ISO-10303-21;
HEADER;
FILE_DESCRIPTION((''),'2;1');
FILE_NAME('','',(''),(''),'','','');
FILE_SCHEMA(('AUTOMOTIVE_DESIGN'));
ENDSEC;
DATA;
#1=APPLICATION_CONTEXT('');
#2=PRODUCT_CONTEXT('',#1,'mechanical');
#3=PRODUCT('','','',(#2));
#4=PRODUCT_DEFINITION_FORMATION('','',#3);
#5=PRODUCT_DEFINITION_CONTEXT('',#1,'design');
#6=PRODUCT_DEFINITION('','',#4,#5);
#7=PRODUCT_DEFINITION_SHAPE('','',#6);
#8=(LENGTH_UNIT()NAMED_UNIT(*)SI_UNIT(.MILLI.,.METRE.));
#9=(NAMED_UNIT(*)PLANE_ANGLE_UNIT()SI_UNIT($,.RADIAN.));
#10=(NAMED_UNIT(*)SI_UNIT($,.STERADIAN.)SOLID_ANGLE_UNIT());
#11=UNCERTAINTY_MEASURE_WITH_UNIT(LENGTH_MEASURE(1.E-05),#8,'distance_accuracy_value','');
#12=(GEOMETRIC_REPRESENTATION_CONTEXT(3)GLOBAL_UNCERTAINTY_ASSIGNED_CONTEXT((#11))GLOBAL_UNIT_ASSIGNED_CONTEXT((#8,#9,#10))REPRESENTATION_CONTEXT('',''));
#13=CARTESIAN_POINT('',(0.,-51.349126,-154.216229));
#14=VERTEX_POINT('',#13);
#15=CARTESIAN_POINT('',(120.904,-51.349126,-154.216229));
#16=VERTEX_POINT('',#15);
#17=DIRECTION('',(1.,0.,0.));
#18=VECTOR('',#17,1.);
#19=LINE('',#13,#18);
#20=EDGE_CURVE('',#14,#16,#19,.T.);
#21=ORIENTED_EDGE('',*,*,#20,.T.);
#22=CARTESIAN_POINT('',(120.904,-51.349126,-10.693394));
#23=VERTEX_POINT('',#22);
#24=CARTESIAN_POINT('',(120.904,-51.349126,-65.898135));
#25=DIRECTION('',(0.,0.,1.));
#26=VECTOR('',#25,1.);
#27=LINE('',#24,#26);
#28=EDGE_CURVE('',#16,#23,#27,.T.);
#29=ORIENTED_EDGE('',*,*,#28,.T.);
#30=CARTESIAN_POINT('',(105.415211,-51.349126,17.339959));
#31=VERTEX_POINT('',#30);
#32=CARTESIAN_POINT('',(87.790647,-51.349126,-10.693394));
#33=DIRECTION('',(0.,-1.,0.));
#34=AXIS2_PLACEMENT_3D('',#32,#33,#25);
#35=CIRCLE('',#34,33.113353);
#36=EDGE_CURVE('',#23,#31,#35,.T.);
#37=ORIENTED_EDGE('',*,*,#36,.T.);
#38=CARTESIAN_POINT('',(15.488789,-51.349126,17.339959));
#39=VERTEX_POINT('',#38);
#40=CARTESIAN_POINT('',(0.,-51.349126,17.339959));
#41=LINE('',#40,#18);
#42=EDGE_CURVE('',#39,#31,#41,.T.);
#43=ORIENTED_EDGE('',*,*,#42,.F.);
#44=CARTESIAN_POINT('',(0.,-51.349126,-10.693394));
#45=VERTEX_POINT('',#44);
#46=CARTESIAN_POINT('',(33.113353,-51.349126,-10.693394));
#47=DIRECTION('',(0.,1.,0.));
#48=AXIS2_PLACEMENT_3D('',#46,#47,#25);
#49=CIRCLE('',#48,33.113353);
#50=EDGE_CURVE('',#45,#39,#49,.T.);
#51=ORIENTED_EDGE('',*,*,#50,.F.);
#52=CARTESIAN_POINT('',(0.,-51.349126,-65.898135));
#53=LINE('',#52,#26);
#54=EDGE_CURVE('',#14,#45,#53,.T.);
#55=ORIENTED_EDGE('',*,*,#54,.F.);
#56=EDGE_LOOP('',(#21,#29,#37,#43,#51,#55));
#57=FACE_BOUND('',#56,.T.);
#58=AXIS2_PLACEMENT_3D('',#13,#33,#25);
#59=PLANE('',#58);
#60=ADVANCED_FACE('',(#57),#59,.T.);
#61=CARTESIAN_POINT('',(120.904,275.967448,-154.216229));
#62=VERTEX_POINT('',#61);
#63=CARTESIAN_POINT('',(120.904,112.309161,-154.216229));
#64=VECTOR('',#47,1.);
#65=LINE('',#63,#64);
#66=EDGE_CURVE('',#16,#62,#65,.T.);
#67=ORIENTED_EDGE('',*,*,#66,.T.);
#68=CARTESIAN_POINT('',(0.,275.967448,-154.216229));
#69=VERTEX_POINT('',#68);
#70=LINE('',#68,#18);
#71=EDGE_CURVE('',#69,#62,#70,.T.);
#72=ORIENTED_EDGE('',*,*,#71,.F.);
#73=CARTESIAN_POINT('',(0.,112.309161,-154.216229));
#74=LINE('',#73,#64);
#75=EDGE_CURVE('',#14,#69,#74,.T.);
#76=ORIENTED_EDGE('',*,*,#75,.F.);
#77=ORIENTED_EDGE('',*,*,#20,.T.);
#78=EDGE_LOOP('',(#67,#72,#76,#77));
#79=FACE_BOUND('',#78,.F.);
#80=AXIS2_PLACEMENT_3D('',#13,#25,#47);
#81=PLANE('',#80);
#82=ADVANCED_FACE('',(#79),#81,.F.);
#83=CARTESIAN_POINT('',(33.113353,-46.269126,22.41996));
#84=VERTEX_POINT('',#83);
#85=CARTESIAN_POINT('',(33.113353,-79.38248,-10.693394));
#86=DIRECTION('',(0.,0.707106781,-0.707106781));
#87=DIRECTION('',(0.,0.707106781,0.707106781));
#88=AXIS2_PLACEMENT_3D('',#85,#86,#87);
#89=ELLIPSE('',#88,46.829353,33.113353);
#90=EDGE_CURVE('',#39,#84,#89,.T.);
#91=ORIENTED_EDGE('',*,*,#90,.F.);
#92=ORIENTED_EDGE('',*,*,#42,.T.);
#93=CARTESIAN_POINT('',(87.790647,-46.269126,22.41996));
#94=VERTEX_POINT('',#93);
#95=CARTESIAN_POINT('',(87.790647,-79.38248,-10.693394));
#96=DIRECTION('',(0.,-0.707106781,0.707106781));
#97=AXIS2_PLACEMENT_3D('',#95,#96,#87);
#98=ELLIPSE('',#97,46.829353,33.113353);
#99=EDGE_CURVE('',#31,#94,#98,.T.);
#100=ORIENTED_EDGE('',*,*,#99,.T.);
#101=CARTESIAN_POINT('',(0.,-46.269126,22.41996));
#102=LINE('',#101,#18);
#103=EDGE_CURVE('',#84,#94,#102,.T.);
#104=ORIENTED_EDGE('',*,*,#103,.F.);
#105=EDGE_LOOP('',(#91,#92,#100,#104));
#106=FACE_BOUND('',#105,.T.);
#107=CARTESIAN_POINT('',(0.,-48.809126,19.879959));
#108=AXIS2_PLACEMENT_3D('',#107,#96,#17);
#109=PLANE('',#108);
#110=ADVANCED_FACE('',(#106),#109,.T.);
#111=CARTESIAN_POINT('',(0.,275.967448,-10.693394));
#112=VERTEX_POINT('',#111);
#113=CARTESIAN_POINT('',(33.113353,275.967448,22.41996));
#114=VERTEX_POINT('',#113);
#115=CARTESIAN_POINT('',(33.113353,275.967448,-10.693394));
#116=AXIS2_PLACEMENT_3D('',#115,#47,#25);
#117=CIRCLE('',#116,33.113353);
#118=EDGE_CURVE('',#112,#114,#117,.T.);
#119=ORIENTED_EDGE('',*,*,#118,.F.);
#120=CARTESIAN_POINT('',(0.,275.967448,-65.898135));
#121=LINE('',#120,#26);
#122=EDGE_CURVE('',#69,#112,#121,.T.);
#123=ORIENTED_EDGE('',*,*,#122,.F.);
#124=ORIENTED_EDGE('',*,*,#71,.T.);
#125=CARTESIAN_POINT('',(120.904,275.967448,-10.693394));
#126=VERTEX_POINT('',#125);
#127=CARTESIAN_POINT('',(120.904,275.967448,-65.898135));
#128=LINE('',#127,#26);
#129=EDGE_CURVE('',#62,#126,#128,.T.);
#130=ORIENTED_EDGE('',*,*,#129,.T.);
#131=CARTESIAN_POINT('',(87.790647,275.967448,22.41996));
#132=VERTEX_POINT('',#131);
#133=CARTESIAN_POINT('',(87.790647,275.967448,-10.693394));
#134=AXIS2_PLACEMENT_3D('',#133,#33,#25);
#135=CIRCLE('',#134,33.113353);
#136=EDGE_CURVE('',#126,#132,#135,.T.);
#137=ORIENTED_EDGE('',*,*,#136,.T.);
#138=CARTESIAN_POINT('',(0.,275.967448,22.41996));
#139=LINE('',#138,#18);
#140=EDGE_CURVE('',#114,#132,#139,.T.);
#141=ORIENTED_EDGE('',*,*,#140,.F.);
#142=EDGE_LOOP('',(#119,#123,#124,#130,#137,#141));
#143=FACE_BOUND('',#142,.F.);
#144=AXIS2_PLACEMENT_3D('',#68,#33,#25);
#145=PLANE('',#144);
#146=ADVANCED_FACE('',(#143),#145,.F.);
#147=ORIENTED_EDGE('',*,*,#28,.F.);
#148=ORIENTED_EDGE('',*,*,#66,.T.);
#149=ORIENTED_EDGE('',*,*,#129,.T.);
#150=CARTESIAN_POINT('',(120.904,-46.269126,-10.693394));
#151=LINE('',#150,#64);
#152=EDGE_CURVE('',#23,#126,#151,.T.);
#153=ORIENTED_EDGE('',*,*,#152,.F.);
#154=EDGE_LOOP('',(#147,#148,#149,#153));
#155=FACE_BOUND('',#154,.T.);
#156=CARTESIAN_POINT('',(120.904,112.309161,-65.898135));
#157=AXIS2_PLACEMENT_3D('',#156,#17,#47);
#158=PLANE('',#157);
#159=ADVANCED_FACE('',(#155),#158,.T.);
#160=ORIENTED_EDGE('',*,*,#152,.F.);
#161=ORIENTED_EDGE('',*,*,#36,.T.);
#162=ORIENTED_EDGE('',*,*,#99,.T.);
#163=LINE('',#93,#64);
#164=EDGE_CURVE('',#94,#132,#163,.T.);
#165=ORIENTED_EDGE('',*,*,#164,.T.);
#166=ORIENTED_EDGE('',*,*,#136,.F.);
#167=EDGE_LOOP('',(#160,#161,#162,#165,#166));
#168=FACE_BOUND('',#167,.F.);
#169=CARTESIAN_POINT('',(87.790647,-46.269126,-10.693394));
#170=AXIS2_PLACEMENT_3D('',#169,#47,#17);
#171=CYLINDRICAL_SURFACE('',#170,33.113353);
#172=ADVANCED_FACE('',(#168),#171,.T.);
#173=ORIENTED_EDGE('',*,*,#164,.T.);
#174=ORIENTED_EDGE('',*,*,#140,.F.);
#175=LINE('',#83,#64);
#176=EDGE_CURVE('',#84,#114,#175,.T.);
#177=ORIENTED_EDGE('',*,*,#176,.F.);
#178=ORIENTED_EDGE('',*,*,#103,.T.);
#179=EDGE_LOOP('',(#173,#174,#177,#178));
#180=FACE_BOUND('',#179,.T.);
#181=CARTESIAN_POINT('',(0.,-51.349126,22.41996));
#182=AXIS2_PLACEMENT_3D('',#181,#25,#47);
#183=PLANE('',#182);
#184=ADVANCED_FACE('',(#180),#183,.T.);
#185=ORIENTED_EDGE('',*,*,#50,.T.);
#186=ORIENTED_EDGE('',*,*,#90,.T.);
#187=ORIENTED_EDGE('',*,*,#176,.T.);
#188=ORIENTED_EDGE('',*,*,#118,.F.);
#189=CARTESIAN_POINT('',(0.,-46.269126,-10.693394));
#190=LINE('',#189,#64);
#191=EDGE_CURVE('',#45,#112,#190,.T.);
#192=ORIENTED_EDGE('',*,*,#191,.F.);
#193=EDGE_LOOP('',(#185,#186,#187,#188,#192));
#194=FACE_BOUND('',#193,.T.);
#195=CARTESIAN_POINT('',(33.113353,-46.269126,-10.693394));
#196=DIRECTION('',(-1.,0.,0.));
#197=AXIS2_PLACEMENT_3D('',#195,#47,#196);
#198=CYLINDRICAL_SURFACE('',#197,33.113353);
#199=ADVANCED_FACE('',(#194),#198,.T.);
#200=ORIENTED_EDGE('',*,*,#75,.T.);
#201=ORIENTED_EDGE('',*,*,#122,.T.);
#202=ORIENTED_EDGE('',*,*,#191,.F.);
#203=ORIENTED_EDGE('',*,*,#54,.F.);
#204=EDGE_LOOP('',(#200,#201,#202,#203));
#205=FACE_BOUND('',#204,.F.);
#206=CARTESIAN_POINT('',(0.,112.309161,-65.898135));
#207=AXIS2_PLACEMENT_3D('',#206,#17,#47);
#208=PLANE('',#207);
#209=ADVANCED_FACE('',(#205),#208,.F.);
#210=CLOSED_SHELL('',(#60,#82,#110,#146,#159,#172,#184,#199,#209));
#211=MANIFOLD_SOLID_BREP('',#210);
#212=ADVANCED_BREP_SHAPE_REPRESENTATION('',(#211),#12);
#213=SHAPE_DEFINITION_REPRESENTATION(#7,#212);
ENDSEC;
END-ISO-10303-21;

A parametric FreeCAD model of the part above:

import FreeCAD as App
import Part
import Sketcher

V = App.Vector
Q = App.Units.Quantity


def edges_at(feature, points):
    """Names of the edges that pass closest to the given points."""
    edges = feature.Shape.Edges
    near = lambda p: min(range(len(edges)), key=lambda i: edges[i].distToShape(Part.Vertex(*p))[0])
    return sorted({f"Edge{near(p) + 1}" for p in points})


def add_polygon(sketch, points):
    """Adds a closed chain of lines whose ends are joined by coincident constraints."""
    first, n = sketch.GeometryCount, len(points)
    for a, b in zip(points, points[1:] + points[:1]):
        sketch.addGeometry(Part.LineSegment(App.Vector(*a, 0), App.Vector(*b, 0)), False)
    for i in range(n):
        sketch.addConstraint(Sketcher.Constraint("Coincident", first + i, 2, first + (i + 1) % n, 1))

doc = App.newDocument("Part")
body = doc.addObject("PartDesign::Body", "Body")

# Sketch on YZ plane
sketch1 = body.newObject("Sketcher::SketchObject", "Sketch")
sketch1.AttachmentSupport = (doc.getObject("YZ_Plane"), [""])
sketch1.MapMode = "FlatFace"
add_polygon(sketch1, [(-51, 22), (-51, -154), (276, -154), (276, 22)])  # lines 0-3
sketch1.addConstraint([
    Sketcher.Constraint("Vertical", 0),
    Sketcher.Constraint("Horizontal", 1),
    Sketcher.Constraint("Vertical", 2),
    Sketcher.Constraint("Horizontal", 3),
    Sketcher.Constraint("DistanceY", 0, 2, 0, 1, 176.636189),
    Sketcher.Constraint("DistanceX", 1, 1, 1, 2, 327.316575),
    Sketcher.Constraint("DistanceY", 0, 2, -1, 1, 154.216229),
    Sketcher.Constraint("DistanceX", -1, 1, 1, 2, 275.967448),
])
pad1 = body.newObject("PartDesign::Pad", "Pad")
pad1.Profile = sketch1
pad1.Length = Q("4.76 in")
doc.recompute()

chamfer = body.newObject("PartDesign::Chamfer", "Chamfer")
chamfer.Base = (pad1, edges_at(pad1, [(60.452, -51.349, 22.42)]))
chamfer.Size = Q("0.2 in")
doc.recompute()

fillet = body.newObject("PartDesign::Fillet", "Fillet")
fillet.Base = (chamfer, edges_at(chamfer, [(120.904, 114.849, 22.42), (0, 114.849, 22.42)]))
fillet.Radius = 33.113353

doc.recompute()
